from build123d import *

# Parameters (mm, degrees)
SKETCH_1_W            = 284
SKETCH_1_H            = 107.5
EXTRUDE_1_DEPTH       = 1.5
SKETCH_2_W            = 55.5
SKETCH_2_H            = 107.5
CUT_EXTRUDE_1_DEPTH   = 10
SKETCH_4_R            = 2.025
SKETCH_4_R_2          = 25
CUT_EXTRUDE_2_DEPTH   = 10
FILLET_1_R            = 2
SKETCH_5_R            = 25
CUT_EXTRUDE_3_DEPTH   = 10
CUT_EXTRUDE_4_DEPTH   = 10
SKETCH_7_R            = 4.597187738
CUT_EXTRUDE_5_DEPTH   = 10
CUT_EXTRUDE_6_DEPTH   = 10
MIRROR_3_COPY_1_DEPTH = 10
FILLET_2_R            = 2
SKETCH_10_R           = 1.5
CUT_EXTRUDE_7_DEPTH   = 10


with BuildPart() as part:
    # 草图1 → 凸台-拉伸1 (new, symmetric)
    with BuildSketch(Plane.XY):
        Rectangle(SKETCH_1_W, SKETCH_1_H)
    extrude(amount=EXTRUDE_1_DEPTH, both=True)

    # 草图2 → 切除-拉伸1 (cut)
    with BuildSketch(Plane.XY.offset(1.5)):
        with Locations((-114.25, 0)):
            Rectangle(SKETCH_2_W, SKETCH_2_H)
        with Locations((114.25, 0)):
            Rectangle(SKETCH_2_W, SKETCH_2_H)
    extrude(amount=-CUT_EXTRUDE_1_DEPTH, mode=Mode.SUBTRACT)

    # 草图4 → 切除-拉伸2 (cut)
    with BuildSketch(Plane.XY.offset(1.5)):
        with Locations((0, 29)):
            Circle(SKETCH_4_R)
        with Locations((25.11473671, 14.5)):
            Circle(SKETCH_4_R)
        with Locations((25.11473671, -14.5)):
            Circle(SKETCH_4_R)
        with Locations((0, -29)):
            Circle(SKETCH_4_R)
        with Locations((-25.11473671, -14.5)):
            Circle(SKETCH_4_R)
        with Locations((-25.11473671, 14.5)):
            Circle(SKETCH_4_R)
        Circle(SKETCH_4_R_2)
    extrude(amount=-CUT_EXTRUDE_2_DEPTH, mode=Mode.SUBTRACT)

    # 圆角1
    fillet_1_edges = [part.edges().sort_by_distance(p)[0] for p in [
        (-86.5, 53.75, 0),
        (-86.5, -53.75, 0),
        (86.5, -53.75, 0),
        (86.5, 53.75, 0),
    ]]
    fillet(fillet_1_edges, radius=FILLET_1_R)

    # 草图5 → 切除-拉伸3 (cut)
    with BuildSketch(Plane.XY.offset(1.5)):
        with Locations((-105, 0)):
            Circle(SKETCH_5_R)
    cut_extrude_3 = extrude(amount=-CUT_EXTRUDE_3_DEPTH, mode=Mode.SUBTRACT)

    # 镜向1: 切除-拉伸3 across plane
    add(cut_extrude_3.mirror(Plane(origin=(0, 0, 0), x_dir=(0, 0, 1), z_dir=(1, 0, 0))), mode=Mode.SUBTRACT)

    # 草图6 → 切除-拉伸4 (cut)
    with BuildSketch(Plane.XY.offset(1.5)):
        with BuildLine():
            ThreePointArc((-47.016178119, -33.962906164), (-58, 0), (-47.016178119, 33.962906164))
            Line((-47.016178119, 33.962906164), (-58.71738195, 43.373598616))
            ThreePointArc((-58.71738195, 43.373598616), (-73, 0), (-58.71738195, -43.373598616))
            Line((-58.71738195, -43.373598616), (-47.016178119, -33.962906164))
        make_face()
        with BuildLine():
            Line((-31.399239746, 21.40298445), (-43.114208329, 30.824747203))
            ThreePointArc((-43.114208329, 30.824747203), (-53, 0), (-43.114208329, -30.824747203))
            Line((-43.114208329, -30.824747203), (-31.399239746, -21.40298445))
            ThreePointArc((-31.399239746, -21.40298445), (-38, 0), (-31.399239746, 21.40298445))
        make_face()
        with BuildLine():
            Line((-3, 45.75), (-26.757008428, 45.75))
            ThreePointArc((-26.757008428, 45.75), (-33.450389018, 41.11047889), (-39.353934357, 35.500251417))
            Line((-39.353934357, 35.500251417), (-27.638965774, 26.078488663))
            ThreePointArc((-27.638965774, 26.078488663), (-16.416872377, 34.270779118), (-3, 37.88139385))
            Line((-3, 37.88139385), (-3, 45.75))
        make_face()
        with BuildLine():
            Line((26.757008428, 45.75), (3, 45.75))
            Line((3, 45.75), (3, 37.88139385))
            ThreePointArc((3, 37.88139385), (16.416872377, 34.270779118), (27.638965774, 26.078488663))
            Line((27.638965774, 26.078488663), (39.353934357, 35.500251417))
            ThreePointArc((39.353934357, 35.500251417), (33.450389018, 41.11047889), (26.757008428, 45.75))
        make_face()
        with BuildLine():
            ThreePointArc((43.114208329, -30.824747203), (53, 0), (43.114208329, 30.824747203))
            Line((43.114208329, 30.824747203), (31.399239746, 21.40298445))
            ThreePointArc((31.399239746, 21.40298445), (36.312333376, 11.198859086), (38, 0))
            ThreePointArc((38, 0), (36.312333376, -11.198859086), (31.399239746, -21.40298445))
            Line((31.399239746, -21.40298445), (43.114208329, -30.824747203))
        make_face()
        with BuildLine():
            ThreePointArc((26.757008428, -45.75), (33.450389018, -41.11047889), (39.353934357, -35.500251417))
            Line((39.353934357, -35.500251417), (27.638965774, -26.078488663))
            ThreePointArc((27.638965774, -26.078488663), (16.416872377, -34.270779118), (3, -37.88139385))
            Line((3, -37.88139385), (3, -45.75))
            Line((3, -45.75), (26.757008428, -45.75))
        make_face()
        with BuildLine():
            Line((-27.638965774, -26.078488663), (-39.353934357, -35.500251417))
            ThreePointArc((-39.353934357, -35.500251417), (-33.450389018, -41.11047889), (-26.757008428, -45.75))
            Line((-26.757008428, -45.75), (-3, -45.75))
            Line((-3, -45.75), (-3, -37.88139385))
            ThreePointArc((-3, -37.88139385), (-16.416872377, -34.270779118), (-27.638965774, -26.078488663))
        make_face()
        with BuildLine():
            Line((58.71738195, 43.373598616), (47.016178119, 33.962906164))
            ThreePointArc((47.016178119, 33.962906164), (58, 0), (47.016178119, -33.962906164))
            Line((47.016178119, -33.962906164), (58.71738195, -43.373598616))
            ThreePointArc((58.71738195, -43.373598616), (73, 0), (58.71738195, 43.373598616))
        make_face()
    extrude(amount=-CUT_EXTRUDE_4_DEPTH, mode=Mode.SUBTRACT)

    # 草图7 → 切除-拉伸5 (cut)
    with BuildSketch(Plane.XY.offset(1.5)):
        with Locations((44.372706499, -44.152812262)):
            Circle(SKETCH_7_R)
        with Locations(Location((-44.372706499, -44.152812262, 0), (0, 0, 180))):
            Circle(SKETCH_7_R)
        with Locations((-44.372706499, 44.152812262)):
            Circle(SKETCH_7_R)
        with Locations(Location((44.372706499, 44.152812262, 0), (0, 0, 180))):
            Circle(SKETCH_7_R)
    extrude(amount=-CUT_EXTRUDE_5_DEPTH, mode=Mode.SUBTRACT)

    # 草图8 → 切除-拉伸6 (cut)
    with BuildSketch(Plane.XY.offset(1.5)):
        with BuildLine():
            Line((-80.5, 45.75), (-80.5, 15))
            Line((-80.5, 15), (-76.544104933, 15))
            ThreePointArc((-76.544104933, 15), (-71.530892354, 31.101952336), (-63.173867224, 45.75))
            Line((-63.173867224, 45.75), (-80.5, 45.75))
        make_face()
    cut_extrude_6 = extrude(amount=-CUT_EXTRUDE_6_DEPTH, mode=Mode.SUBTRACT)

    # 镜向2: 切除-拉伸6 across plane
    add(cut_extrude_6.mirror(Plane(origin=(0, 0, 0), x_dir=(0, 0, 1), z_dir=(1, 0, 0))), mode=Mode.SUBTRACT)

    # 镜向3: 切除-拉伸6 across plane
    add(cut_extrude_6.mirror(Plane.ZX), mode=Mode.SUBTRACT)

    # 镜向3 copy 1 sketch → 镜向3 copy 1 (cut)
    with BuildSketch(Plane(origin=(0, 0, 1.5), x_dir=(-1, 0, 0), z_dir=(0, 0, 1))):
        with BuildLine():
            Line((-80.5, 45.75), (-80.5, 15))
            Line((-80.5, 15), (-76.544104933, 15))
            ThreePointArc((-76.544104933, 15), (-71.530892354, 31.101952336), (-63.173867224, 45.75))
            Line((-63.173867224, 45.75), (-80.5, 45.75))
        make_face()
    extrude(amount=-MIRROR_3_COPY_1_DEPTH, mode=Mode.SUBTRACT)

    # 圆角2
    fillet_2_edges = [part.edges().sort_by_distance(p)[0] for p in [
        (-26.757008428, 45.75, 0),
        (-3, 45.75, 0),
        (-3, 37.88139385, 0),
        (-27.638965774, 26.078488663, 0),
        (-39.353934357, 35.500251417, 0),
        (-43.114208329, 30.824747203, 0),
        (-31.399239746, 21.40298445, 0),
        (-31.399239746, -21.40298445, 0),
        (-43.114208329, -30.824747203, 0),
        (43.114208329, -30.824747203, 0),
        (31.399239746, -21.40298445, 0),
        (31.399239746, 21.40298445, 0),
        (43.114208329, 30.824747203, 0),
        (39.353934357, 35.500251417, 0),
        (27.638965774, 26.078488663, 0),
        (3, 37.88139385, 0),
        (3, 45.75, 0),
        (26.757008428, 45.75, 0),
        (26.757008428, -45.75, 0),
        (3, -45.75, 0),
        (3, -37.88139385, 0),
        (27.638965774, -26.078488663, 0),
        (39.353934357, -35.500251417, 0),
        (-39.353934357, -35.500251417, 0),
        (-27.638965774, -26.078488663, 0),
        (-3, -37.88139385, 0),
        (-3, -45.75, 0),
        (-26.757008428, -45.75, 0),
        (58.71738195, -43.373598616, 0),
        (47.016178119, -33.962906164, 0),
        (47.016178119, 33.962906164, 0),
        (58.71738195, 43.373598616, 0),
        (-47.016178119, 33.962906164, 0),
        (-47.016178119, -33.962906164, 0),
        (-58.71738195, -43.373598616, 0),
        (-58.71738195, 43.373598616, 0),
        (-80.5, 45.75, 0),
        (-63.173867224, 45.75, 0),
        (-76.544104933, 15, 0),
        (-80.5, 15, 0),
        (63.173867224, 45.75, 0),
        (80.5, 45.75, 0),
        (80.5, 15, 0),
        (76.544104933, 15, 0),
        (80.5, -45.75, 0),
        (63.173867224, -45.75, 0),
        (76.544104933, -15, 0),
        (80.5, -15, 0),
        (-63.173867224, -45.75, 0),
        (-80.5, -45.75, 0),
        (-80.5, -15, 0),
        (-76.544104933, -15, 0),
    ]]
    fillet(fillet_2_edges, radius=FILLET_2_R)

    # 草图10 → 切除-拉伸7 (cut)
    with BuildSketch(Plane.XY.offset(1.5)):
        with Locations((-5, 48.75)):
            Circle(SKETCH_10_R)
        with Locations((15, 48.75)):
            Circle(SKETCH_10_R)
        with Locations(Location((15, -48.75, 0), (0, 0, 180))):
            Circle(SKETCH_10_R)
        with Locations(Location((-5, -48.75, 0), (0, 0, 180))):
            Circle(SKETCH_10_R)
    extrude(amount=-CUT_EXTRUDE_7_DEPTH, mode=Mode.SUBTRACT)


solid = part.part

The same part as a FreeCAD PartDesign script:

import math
import FreeCAD as App
import Part
import Sketcher
Q = App.Units.Quantity


def edges_at(feature, points):
    """Names of the edges that pass closest to the given points."""
    edges = feature.Shape.Edges
    near = lambda p: min(range(len(edges)), key=lambda i: edges[i].distToShape(Part.Vertex(*p))[0])
    return sorted({f"Edge{near(p) + 1}" for p in points})


def add_polygon(sketch, points):
    """Adds a closed chain of lines whose ends are joined by coincident constraints."""
    first, n = sketch.GeometryCount, len(points)
    for a, b in zip(points, points[1:] + points[:1]):
        sketch.addGeometry(Part.LineSegment(App.Vector(*a, 0), App.Vector(*b, 0)), False)
    for i in range(n):
        sketch.addConstraint(Sketcher.Constraint("Coincident", first + i, 2, first + (i + 1) % n, 1))

doc = App.newDocument("Part")
body = doc.addObject("PartDesign::Body", "Body")

# Sketch on XY plane
sketch1 = doc.addObject("Sketcher::SketchObject", "Sketch")
body.addObject(sketch1)
sketch1.AttachmentSupport = (doc.XY_Plane, [""])
sketch1.MapMode = "FlatFace"
add_polygon(sketch1, [(-142, 54), (-142, -54), (142, -54), (142, 54)])  # lines 0-3
sketch1.addConstraint(Sketcher.Constraint("Vertical", 0))
sketch1.addConstraint(Sketcher.Constraint("Horizontal", 1))
sketch1.addConstraint(Sketcher.Constraint("Vertical", 2))
sketch1.addConstraint(Sketcher.Constraint("Horizontal", 3))
sketch1.addConstraint(Sketcher.Constraint("Symmetric", 0, 2, 2, 2, -1, 1))
sketch1.addConstraint(Sketcher.Constraint("DistanceX", 1, 1, 1, 2, Q("284 mm")))
sketch1.addConstraint(Sketcher.Constraint("DistanceY", 0, 2, 0, 1, Q("107.5 mm")))
pad1 = doc.addObject("PartDesign::Pad", "Pad")
body.addObject(pad1)
pad1.Profile = sketch1
pad1.Length = 3
pad1.Midplane = True

# Sketch on XY plane
sketch2 = doc.addObject("Sketcher::SketchObject", "Sketch001")
body.addObject(sketch2)
sketch2.AttachmentSupport = (doc.XY_Plane, [""])
sketch2.MapMode = "FlatFace"
sketch2.AttachmentOffset = App.Placement(App.Vector(0, 0, 1.5), App.Rotation())
add_polygon(sketch2, [(-142, 54), (-142, -54), (-86, -54), (-86, 54)])  # lines 0-3
add_polygon(sketch2, [(86, 54), (86, -54), (142, -54), (142, 54)])  # lines 4-7
sketch2.addConstraint(Sketcher.Constraint("Vertical", 0))
sketch2.addConstraint(Sketcher.Constraint("Horizontal", 1))
sketch2.addConstraint(Sketcher.Constraint("Vertical", 2))
sketch2.addConstraint(Sketcher.Constraint("Horizontal", 3))
sketch2.addConstraint(Sketcher.Constraint("Vertical", 4))
sketch2.addConstraint(Sketcher.Constraint("Horizontal", 5))
sketch2.addConstraint(Sketcher.Constraint("Vertical", 6))
sketch2.addConstraint(Sketcher.Constraint("Horizontal", 7))
sketch2.addConstraint(Sketcher.Constraint("Symmetric", 2, 2, 4, 2, -1, 1))
sketch2.addConstraint(Sketcher.Constraint("Symmetric", 0, 2, 6, 2, -1, 1))
sketch2.addConstraint(Sketcher.Constraint("Horizontal", 1, 2, 4, 2))
sketch2.addConstraint(Sketcher.Constraint("DistanceX", 1, 1, 1, 2, Q("55.5 mm")))
sketch2.addConstraint(Sketcher.Constraint("DistanceY", 0, 2, 0, 1, Q("107.5 mm")))
sketch2.addConstraint(Sketcher.Constraint("DistanceX", 0, 2, -1, 1, Q("142 mm")))
pocket1 = doc.addObject("PartDesign::Pocket", "Pocket")
body.addObject(pocket1)
pocket1.Profile = sketch2
pocket1.Length = 10

# Sketch on XY plane
sketch3 = doc.addObject("Sketcher::SketchObject", "Sketch002")
body.addObject(sketch3)
sketch3.AttachmentSupport = (doc.XY_Plane, [""])
sketch3.MapMode = "FlatFace"
sketch3.AttachmentOffset = App.Placement(App.Vector(0, 0, 1.5), App.Rotation())
sketch3.addGeometry(Part.Circle(App.Vector(0, 29, 0), App.Vector(0, 0, 1), 2), False)
sketch3.addGeometry(Part.Circle(App.Vector(25.1, 14.5, 0), App.Vector(0, 0, 1), 2), False)
sketch3.addGeometry(Part.Circle(App.Vector(25.1, -14.5, 0), App.Vector(0, 0, 1), 2), False)
sketch3.addGeometry(Part.Circle(App.Vector(0, -29, 0), App.Vector(0, 0, 1), 2), False)
sketch3.addGeometry(Part.Circle(App.Vector(-25.1, -14.5, 0), App.Vector(0, 0, 1), 2), False)
sketch3.addGeometry(Part.Circle(App.Vector(-25.1, 14.5, 0), App.Vector(0, 0, 1), 2), False)
sketch3.addGeometry(Part.Circle(App.Vector(0, 0, 0), App.Vector(0, 0, 1), 25), False)
sketch3.addConstraint(Sketcher.Constraint("Coincident", 6, 3, -1, 1))
sketch3.addConstraint(Sketcher.Constraint("Equal", 0, 1))
sketch3.addConstraint(Sketcher.Constraint("Equal", 1, 2))
sketch3.addConstraint(Sketcher.Constraint("Equal", 2, 3))
sketch3.addConstraint(Sketcher.Constraint("Equal", 3, 4))
sketch3.addConstraint(Sketcher.Constraint("Equal", 4, 5))
sketch3.addConstraint(Sketcher.Constraint("Symmetric", 0, 3, 3, 3, -1, 1))
sketch3.addConstraint(Sketcher.Constraint("Symmetric", 1, 3, 4, 3, -1, 1))
sketch3.addConstraint(Sketcher.Constraint("Symmetric", 2, 3, 5, 3, -1, 1))
sketch3.addConstraint(Sketcher.Constraint("Symmetric", 2, 3, 4, 3, -2))
sketch3.addConstraint(Sketcher.Constraint("PointOnObject", 0, 3, -2))
sketch3.addConstraint(Sketcher.Constraint("Diameter", 6, Q("50 mm")))
sketch3.addConstraint(Sketcher.Constraint("Diameter", 0, Q("4.05 mm")))
sketch3.addConstraint(Sketcher.Constraint("DistanceY", -1, 1, 0, 3, Q("29 mm")))
sketch3.addConstraint(Sketcher.Constraint("DistanceY", 2, 3, 1, 3, Q("29 mm")))
sketch3.addConstraint(Sketcher.Constraint("DistanceX", -1, 1, 1, 3, Q("25.114737 mm")))
pocket2 = doc.addObject("PartDesign::Pocket", "Pocket001")
body.addObject(pocket2)
pocket2.Profile = sketch3
pocket2.Length = 10
doc.recompute()

fillet = doc.addObject("PartDesign::Fillet", "Fillet")
body.addObject(fillet)
fillet.Base = (pocket2, edges_at(pocket2, [
    (-86.5, 53.75, 0),
    (-86.5, -53.75, 0),
    (86.5, -53.75, 0),
    (86.5, 53.75, 0),
]))
fillet.Radius = 2

# Sketch on XY plane
sketch4 = doc.addObject("Sketcher::SketchObject", "Sketch003")
body.addObject(sketch4)
sketch4.AttachmentSupport = (doc.XY_Plane, [""])
sketch4.MapMode = "FlatFace"
sketch4.AttachmentOffset = App.Placement(App.Vector(0, 0, 1.5), App.Rotation())
sketch4.addGeometry(Part.Circle(App.Vector(-105, 0, 0), App.Vector(0, 0, 1), 25), False)
sketch4.addConstraint(Sketcher.Constraint("PointOnObject", 0, 3, -1))
sketch4.addConstraint(Sketcher.Constraint("Diameter", 0, Q("50 mm")))
sketch4.addConstraint(Sketcher.Constraint("DistanceX", 0, 3, -1, 1, Q("105 mm")))
pocket3 = doc.addObject("PartDesign::Pocket", "Pocket002")
body.addObject(pocket3)
pocket3.Profile = sketch4
pocket3.Length = 10
doc.recompute()

mirrored = doc.addObject("PartDesign::Mirrored", "Mirrored")
body.addObject(mirrored)
mirrored.Originals = [pocket3]
mirrored.MirrorPlane = (doc.YZ_Plane, [""])
body.Tip = mirrored

# Sketch on XY plane
sketch5 = doc.addObject("Sketcher::SketchObject", "Sketch004")
body.addObject(sketch5)
sketch5.AttachmentSupport = (doc.XY_Plane, [""])
sketch5.MapMode = "FlatFace"
sketch5.AttachmentOffset = App.Placement(App.Vector(0, 0, 1.5), App.Rotation())
sketch5.addGeometry(Part.ArcOfCircle(Part.Circle(App.Vector(0, 0, 0), App.Vector(0, 0, 1), 58), math.radians(144), math.radians(216)), False)
sketch5.addGeometry(Part.LineSegment(App.Vector(-47, 34, 0), App.Vector(-59, 43, 0)), False)
sketch5.addGeometry(Part.ArcOfCircle(Part.Circle(App.Vector(0, 0, 0), App.Vector(0, 0, 1), 73), math.radians(144), math.radians(216)), False)
sketch5.addGeometry(Part.LineSegment(App.Vector(-59, -43, 0), App.Vector(-47, -34, 0)), False)
sketch5.addGeometry(Part.LineSegment(App.Vector(-31, 21, 0), App.Vector(-43, 31, 0)), False)
sketch5.addGeometry(Part.ArcOfCircle(Part.Circle(App.Vector(0, 0, 0), App.Vector(0, 0, 1), 53), math.radians(144), math.radians(216)), False)
sketch5.addGeometry(Part.LineSegment(App.Vector(-43, -31, 0), App.Vector(-31, -21, 0)), False)
sketch5.addGeometry(Part.ArcOfCircle(Part.Circle(App.Vector(0, 0, 0), App.Vector(0, 0, 1), 38), math.radians(146), math.radians(214)), False)
sketch5.addGeometry(Part.LineSegment(App.Vector(-3, 46, 0), App.Vector(-27, 46, 0)), False)
sketch5.addGeometry(Part.ArcOfCircle(Part.Circle(App.Vector(0, 0, 0), App.Vector(0, 0, 1), 53), math.radians(120.32), math.radians(137.95)), False)
sketch5.addGeometry(Part.LineSegment(App.Vector(-39, 36, 0), App.Vector(-28, 26, 0)), False)
sketch5.addGeometry(Part.ArcOfCircle(Part.Circle(App.Vector(0, 0, 0), App.Vector(0, 0, 1), 38), math.radians(95), math.radians(137)), False)
sketch5.addGeometry(Part.LineSegment(App.Vector(-3, 38, 0), App.Vector(-3, 46, 0)), False)
sketch5.addGeometry(Part.LineSegment(App.Vector(27, 46, 0), App.Vector(3, 46, 0)), False)
sketch5.addGeometry(Part.LineSegment(App.Vector(3, 46, 0), App.Vector(3, 38, 0)), False)
sketch5.addGeometry(Part.ArcOfCircle(Part.Circle(App.Vector(0, 0, 0), App.Vector(0, 0, 1), 38), math.radians(43), math.radians(85)), False)
sketch5.addGeometry(Part.LineSegment(App.Vector(28, 26, 0), App.Vector(39, 36, 0)), False)
sketch5.addGeometry(Part.ArcOfCircle(Part.Circle(App.Vector(0, 0, 0), App.Vector(0, 0, 1), 53), math.radians(42.05), math.radians(59.68)), False)
sketch5.addGeometry(Part.ArcOfCircle(Part.Circle(App.Vector(0, 0, 0), App.Vector(0, 0, 1), 53), math.radians(-36), math.radians(36)), False)
sketch5.addGeometry(Part.LineSegment(App.Vector(43, 31, 0), App.Vector(31, 21, 0)), False)
sketch5.addGeometry(Part.ArcOfCircle(Part.Circle(App.Vector(0, 0, 0), App.Vector(0, 0, 1), 38), math.radians(0), math.radians(34)), False)
sketch5.addGeometry(Part.ArcOfCircle(Part.Circle(App.Vector(0, 0, 0), App.Vector(0, 0, 1), 38), math.radians(-34), math.radians(0)), False)
sketch5.addGeometry(Part.LineSegment(App.Vector(31, -21, 0), App.Vector(43, -31, 0)), False)
sketch5.addGeometry(Part.ArcOfCircle(Part.Circle(App.Vector(0, 0, 0), App.Vector(0, 0, 1), 53), math.radians(-59.68), math.radians(-42.05)), False)
sketch5.addGeometry(Part.LineSegment(App.Vector(39, -36, 0), App.Vector(28, -26, 0)), False)
sketch5.addGeometry(Part.ArcOfCircle(Part.Circle(App.Vector(0, 0, 0), App.Vector(0, 0, 1), 38), math.radians(-85), math.radians(-43)), False)
sketch5.addGeometry(Part.LineSegment(App.Vector(3, -38, 0), App.Vector(3, -46, 0)), False)
sketch5.addGeometry(Part.LineSegment(App.Vector(3, -46, 0), App.Vector(27, -46, 0)), False)
sketch5.addGeometry(Part.LineSegment(App.Vector(-28, -26, 0), App.Vector(-39, -36, 0)), False)
sketch5.addGeometry(Part.ArcOfCircle(Part.Circle(App.Vector(0, 0, 0), App.Vector(0, 0, 1), 53), math.radians(-137.95), math.radians(-120.32)), False)
sketch5.addGeometry(Part.LineSegment(App.Vector(-27, -46, 0), App.Vector(-3, -46, 0)), False)
sketch5.addGeometry(Part.LineSegment(App.Vector(-3, -46, 0), App.Vector(-3, -38, 0)), False)
sketch5.addGeometry(Part.ArcOfCircle(Part.Circle(App.Vector(0, 0, 0), App.Vector(0, 0, 1), 38), math.radians(-137), math.radians(-95)), False)
sketch5.addGeometry(Part.LineSegment(App.Vector(59, 43, 0), App.Vector(47, 34, 0)), False)
sketch5.addGeometry(Part.ArcOfCircle(Part.Circle(App.Vector(0, 0, 0), App.Vector(0, 0, 1), 58), math.radians(-36), math.radians(36)), False)
sketch5.addGeometry(Part.LineSegment(App.Vector(47, -34, 0), App.Vector(59, -43, 0)), False)
sketch5.addGeometry(Part.ArcOfCircle(Part.Circle(App.Vector(0, 0, 0), App.Vector(0, 0, 1), 73), math.radians(-36), math.radians(36)), False)
sketch5.addConstraint(Sketcher.Constraint("Coincident", 0, 1, 1, 1))
sketch5.addConstraint(Sketcher.Constraint("Coincident", 1, 2, 2, 1))
sketch5.addConstraint(Sketcher.Constraint("Coincident", 2, 2, 3, 1))
sketch5.addConstraint(Sketcher.Constraint("Coincident", 3, 2, 0, 2))
sketch5.addConstraint(Sketcher.Constraint("Coincident", 4, 2, 5, 1))
sketch5.addConstraint(Sketcher.Constraint("Coincident", 5, 2, 6, 1))
sketch5.addConstraint(Sketcher.Constraint("Coincident", 6, 2, 7, 2))
sketch5.addConstraint(Sketcher.Constraint("Coincident", 7, 1, 4, 1))
sketch5.addConstraint(Sketcher.Constraint("Coincident", 8, 2, 9, 1))
sketch5.addConstraint(Sketcher.Constraint("Coincident", 9, 2, 10, 1))
sketch5.addConstraint(Sketcher.Constraint("Coincident", 10, 2, 11, 2))
sketch5.addConstraint(Sketcher.Constraint("Coincident", 11, 1, 12, 1))
sketch5.addConstraint(Sketcher.Constraint("Coincident", 12, 2, 8, 1))
sketch5.addConstraint(Sketcher.Constraint("Coincident", 13, 2, 14, 1))
sketch5.addConstraint(Sketcher.Constraint("Coincident", 14, 2, 15, 2))
sketch5.addConstraint(Sketcher.Constraint("Coincident", 15, 1, 16, 1))
sketch5.addConstraint(Sketcher.Constraint("Coincident", 16, 2, 17, 1))
sketch5.addConstraint(Sketcher.Constraint("Coincident", 17, 2, 13, 1))
sketch5.addConstraint(Sketcher.Constraint("Coincident", 18, 2, 19, 1))
sketch5.addConstraint(Sketcher.Constraint("Coincident", 19, 2, 20, 2))
sketch5.addConstraint(Sketcher.Constraint("Tangent", 20, 1, 21, 2))
sketch5.addConstraint(Sketcher.Constraint("Coincident", 21, 1, 22, 1))
sketch5.addConstraint(Sketcher.Constraint("Coincident", 22, 2, 18, 1))
sketch5.addConstraint(Sketcher.Constraint("Coincident", 23, 2, 24, 1))
sketch5.addConstraint(Sketcher.Constraint("Coincident", 24, 2, 25, 2))
sketch5.addConstraint(Sketcher.Constraint("Coincident", 25, 1, 26, 1))
sketch5.addConstraint(Sketcher.Constraint("Coincident", 26, 2, 27, 1))
sketch5.addConstraint(Sketcher.Constraint("Coincident", 27, 2, 23, 1))
sketch5.addConstraint(Sketcher.Constraint("Coincident", 28, 2, 29, 1))
sketch5.addConstraint(Sketcher.Constraint("Coincident", 29, 2, 30, 1))
sketch5.addConstraint(Sketcher.Constraint("Coincident", 30, 2, 31, 1))
sketch5.addConstraint(Sketcher.Constraint("Coincident", 31, 2, 32, 2))
sketch5.addConstraint(Sketcher.Constraint("Coincident", 32, 1, 28, 1))
sketch5.addConstraint(Sketcher.Constraint("Coincident", 33, 2, 34, 2))
sketch5.addConstraint(Sketcher.Constraint("Coincident", 34, 1, 35, 1))
sketch5.addConstraint(Sketcher.Constraint("Coincident", 35, 2, 36, 1))
sketch5.addConstraint(Sketcher.Constraint("Coincident", 36, 2, 33, 1))
sketch5.addConstraint(Sketcher.Constraint("Horizontal", 8))
sketch5.addConstraint(Sketcher.Constraint("Vertical", 12))
sketch5.addConstraint(Sketcher.Constraint("Horizontal", 13))
sketch5.addConstraint(Sketcher.Constraint("Vertical", 14))
sketch5.addConstraint(Sketcher.Constraint("Vertical", 26))
sketch5.addConstraint(Sketcher.Constraint("Horizontal", 27))
sketch5.addConstraint(Sketcher.Constraint("Horizontal", 30))
sketch5.addConstraint(Sketcher.Constraint("Vertical", 31))
sketch5.addConstraint(Sketcher.Constraint("Coincident", 0, 3, -1, 1))
sketch5.addConstraint(Sketcher.Constraint("Coincident", 2, 3, -1, 1))
sketch5.addConstraint(Sketcher.Constraint("Coincident", 5, 3, -1, 1))
sketch5.addConstraint(Sketcher.Constraint("Coincident", 7, 3, -1, 1))
sketch5.addConstraint(Sketcher.Constraint("Coincident", 9, 3, -1, 1))
sketch5.addConstraint(Sketcher.Constraint("Coincident", 11, 3, -1, 1))
sketch5.addConstraint(Sketcher.Constraint("Coincident", 15, 3, -1, 1))
sketch5.addConstraint(Sketcher.Constraint("Coincident", 17, 3, -1, 1))
sketch5.addConstraint(Sketcher.Constraint("Coincident", 18, 3, -1, 1))
sketch5.addConstraint(Sketcher.Constraint("Coincident", 20, 3, -1, 1))
sketch5.addConstraint(Sketcher.Constraint("Coincident", 23, 3, -1, 1))
sketch5.addConstraint(Sketcher.Constraint("Coincident", 25, 3, -1, 1))
sketch5.addConstraint(Sketcher.Constraint("Coincident", 29, 3, -1, 1))
sketch5.addConstraint(Sketcher.Constraint("Coincident", 32, 3, -1, 1))
sketch5.addConstraint(Sketcher.Constraint("Coincident", 34, 3, -1, 1))
sketch5.addConstraint(Sketcher.Constraint("Coincident", 36, 3, -1, 1))
sketch5.addConstraint(Sketcher.Constraint("Equal", 5, 9))
sketch5.addConstraint(Sketcher.Constraint("Equal", 7, 11))
sketch5.addConstraint(Sketcher.Constraint("Equal", 11, 15))
sketch5.addConstraint(Sketcher.Constraint("Equal", 9, 17))
sketch5.addConstraint(Sketcher.Constraint("Equal", 17, 18))
sketch5.addConstraint(Sketcher.Constraint("Equal", 15, 20))
sketch5.addConstraint(Sketcher.Constraint("Equal", 20, 21))
sketch5.addConstraint(Sketcher.Constraint("Equal", 18, 23))
sketch5.addConstraint(Sketcher.Constraint("Equal", 21, 25))
sketch5.addConstraint(Sketcher.Constraint("Equal", 23, 29))
sketch5.addConstraint(Sketcher.Constraint("Equal", 25, 32))
sketch5.addConstraint(Sketcher.Constraint("Equal", 0, 34))
sketch5.addConstraint(Sketcher.Constraint("Equal", 2, 36))
sketch5.addConstraint(Sketcher.Constraint("Symmetric", 12, 2, 26, 2, -1, 1))
sketch5.addConstraint(Sketcher.Constraint("Symmetric", 13, 2, 30, 2, -1, 1))
sketch5.addConstraint(Sketcher.Constraint("Symmetric", 12, 2, 13, 2, -2))
sketch5.addConstraint(Sketcher.Constraint("PointOnObject", 20, 1, -1))
sketch5.addConstraint(Sketcher.Constraint("Parallel", 1, 4))
sketch5.addConstraint(Sketcher.Constraint("Parallel", 3, 6))
sketch5.addConstraint(Sketcher.Constraint("Parallel", 4, 10))
sketch5.addConstraint(Sketcher.Constraint("Parallel", 6, 16))
sketch5.addConstraint(Sketcher.Constraint("Parallel", 16, 19))
sketch5.addConstraint(Sketcher.Constraint("Parallel", 10, 22))
sketch5.addConstraint(Sketcher.Constraint("Parallel", 22, 24))
sketch5.addConstraint(Sketcher.Constraint("Parallel", 19, 28))
sketch5.addConstraint(Sketcher.Constraint("Parallel", 28, 33))
sketch5.addConstraint(Sketcher.Constraint("Parallel", 24, 35))
sketch5.addConstraint(Sketcher.Constraint("Horizontal", 10, 2, 15, 1))
sketch5.addConstraint(Sketcher.Constraint("Horizontal", 9, 2, 16, 2))
sketch5.addConstraint(Sketcher.Constraint("Horizontal", 4, 2, 18, 2))
sketch5.addConstraint(Sketcher.Constraint("Horizontal", 6, 2, 21, 1))
sketch5.addConstraint(Sketcher.Constraint("Horizontal", 23, 2, 28, 2))
sketch5.addConstraint(Sketcher.Constraint("Horizontal", 0, 1, 33, 2))
sketch5.addConstraint(Sketcher.Constraint("Horizontal", 3, 2, 34, 1))
sketch5.addConstraint(Sketcher.Constraint("Vertical", 1, 2, 2, 2))
sketch5.addConstraint(Sketcher.Constraint("Vertical", 4, 2, 5, 2))
sketch5.addConstraint(Sketcher.Constraint("Vertical", 16, 2, 23, 2))
sketch5.addConstraint(Sketcher.Constraint("Equal", 6, 10))
sketch5.addConstraint(Sketcher.Constraint("Radius", 0, Q("58 mm")))
sketch5.addConstraint(Sketcher.Constraint("Radius", 2, Q("73 mm")))
sketch5.addConstraint(Sketcher.Constraint("Radius", 5, Q("53 mm")))
sketch5.addConstraint(Sketcher.Constraint("Radius", 7, Q("38 mm")))
sketch5.addConstraint(Sketcher.Constraint("DistanceX", 11, 1, -1, 1, Q("3 mm")))
sketch5.addConstraint(Sketcher.Constraint("DistanceY", -1, 1, 8, 2, Q("45.75 mm")))
sketch5.addConstraint(Sketcher.Constraint("DistanceY", -1, 1, 1, 2, Q("43.373599 mm")))
sketch5.addConstraint(Sketcher.Constraint("DistanceX", 4, 2, 8, 2, Q("16.3572 mm")))
sketch5.addConstraint(Sketcher.Constraint("DistanceX", 3, 2, -1, 1, Q("47.016178 mm")))
pocket4 = doc.addObject("PartDesign::Pocket", "Pocket003")
body.addObject(pocket4)
pocket4.Profile = sketch5
pocket4.Length = 10

# Sketch on XY plane
sketch6 = doc.addObject("Sketcher::SketchObject", "Sketch005")
body.addObject(sketch6)
sketch6.AttachmentSupport = (doc.XY_Plane, [""])
sketch6.MapMode = "FlatFace"
sketch6.AttachmentOffset = App.Placement(App.Vector(0, 0, 1.5), App.Rotation())
sketch6.addGeometry(Part.Circle(App.Vector(44.4, -44.2, 0), App.Vector(0, 0, 1), 4.6), False)
sketch6.addGeometry(Part.Circle(App.Vector(-44.4, -44.2, 0), App.Vector(0, 0, 1), 4.6), False)
sketch6.addGeometry(Part.Circle(App.Vector(-44.4, 44.2, 0), App.Vector(0, 0, 1), 4.6), False)
sketch6.addGeometry(Part.Circle(App.Vector(44.4, 44.2, 0), App.Vector(0, 0, 1), 4.6), False)
sketch6.addConstraint(Sketcher.Constraint("Equal", 0, 1))
sketch6.addConstraint(Sketcher.Constraint("Equal", 1, 2))
sketch6.addConstraint(Sketcher.Constraint("Equal", 2, 3))
sketch6.addConstraint(Sketcher.Constraint("Symmetric", 0, 3, 2, 3, -1, 1))
sketch6.addConstraint(Sketcher.Constraint("Symmetric", 1, 3, 3, 3, -1, 1))
sketch6.addConstraint(Sketcher.Constraint("Symmetric", 0, 3, 1, 3, -2))
sketch6.addConstraint(Sketcher.Constraint("Diameter", 0, Q("9.194375 mm")))
sketch6.addConstraint(Sketcher.Constraint("DistanceX", -1, 1, 0, 3, Q("44.372706 mm")))
sketch6.addConstraint(Sketcher.Constraint("DistanceY", 0, 3, -1, 1, Q("44.152812 mm")))
pocket5 = doc.addObject("PartDesign::Pocket", "Pocket004")
body.addObject(pocket5)
pocket5.Profile = sketch6
pocket5.Length = 10

# Sketch on XY plane
sketch7 = doc.addObject("Sketcher::SketchObject", "Sketch006")
body.addObject(sketch7)
sketch7.AttachmentSupport = (doc.XY_Plane, [""])
sketch7.MapMode = "FlatFace"
sketch7.AttachmentOffset = App.Placement(App.Vector(0, 0, 1.5), App.Rotation())
sketch7.addGeometry(Part.LineSegment(App.Vector(-80.5, 45.8, 0), App.Vector(-80.5, 15, 0)), False)
sketch7.addGeometry(Part.LineSegment(App.Vector(-80.5, 15, 0), App.Vector(-76.5, 15, 0)), False)
sketch7.addGeometry(Part.ArcOfCircle(Part.Circle(App.Vector(0, 0, 0), App.Vector(0, 0, 1), 78), math.radians(144), math.radians(169)), False)
sketch7.addGeometry(Part.LineSegment(App.Vector(-63.2, 45.8, 0), App.Vector(-80.5, 45.8, 0)), False)
sketch7.addConstraint(Sketcher.Constraint("Coincident", 0, 2, 1, 1))
sketch7.addConstraint(Sketcher.Constraint("Coincident", 1, 2, 2, 2))
sketch7.addConstraint(Sketcher.Constraint("Coincident", 2, 1, 3, 1))
sketch7.addConstraint(Sketcher.Constraint("Coincident", 3, 2, 0, 1))
sketch7.addConstraint(Sketcher.Constraint("Vertical", 0))
sketch7.addConstraint(Sketcher.Constraint("Horizontal", 1))
sketch7.addConstraint(Sketcher.Constraint("Horizontal", 3))
sketch7.addConstraint(Sketcher.Constraint("Coincident", 2, 3, -1, 1))
sketch7.addConstraint(Sketcher.Constraint("Radius", 2, Q("78 mm")))
sketch7.addConstraint(Sketcher.Constraint("DistanceY", -1, 1, 0, 2, Q("15 mm")))
sketch7.addConstraint(Sketcher.Constraint("DistanceY", 0, 2, 0, 1, Q("30.75 mm")))
sketch7.addConstraint(Sketcher.Constraint("DistanceX", 0, 2, -1, 1, Q("80.5 mm")))
pocket6 = doc.addObject("PartDesign::Pocket", "Pocket005")
body.addObject(pocket6)
pocket6.Profile = sketch7
pocket6.Length = 10
doc.recompute()

mirrored2 = doc.addObject("PartDesign::Mirrored", "Mirrored001")
body.addObject(mirrored2)
mirrored2.Originals = [pocket6]
mirrored2.MirrorPlane = (doc.YZ_Plane, [""])
body.Tip = mirrored2
doc.recompute()

mirrored3 = doc.addObject("PartDesign::Mirrored", "Mirrored002")
body.addObject(mirrored3)
mirrored3.Originals = [pocket6]
mirrored3.MirrorPlane = (doc.XZ_Plane, [""])
body.Tip = mirrored3

# Sketch on XY plane
sketch8 = doc.addObject("Sketcher::SketchObject", "Sketch007")
body.addObject(sketch8)
sketch8.AttachmentSupport = (doc.XY_Plane, [""])
sketch8.MapMode = "FlatFace"
sketch8.AttachmentOffset = App.Placement(App.Vector(0, 0, 1.5), App.Rotation())
sketch8.addGeometry(Part.LineSegment(App.Vector(80.5, -45.8, 0), App.Vector(80.5, -15, 0)), False)
sketch8.addGeometry(Part.LineSegment(App.Vector(80.5, -15, 0), App.Vector(76.5, -15, 0)), False)
sketch8.addGeometry(Part.ArcOfCircle(Part.Circle(App.Vector(0, 0, 0), App.Vector(0, 0, 1), 78), math.radians(-36), math.radians(-11)), False)
sketch8.addGeometry(Part.LineSegment(App.Vector(63.2, -45.8, 0), App.Vector(80.5, -45.8, 0)), False)
sketch8.addConstraint(Sketcher.Constraint("Coincident", 0, 2, 1, 1))
sketch8.addConstraint(Sketcher.Constraint("Coincident", 1, 2, 2, 2))
sketch8.addConstraint(Sketcher.Constraint("Coincident", 2, 1, 3, 1))
sketch8.addConstraint(Sketcher.Constraint("Coincident", 3, 2, 0, 1))
sketch8.addConstraint(Sketcher.Constraint("Vertical", 0))
sketch8.addConstraint(Sketcher.Constraint("Horizontal", 1))
sketch8.addConstraint(Sketcher.Constraint("Horizontal", 3))
sketch8.addConstraint(Sketcher.Constraint("Coincident", 2, 3, -1, 1))
sketch8.addConstraint(Sketcher.Constraint("Radius", 2, Q("78 mm")))
sketch8.addConstraint(Sketcher.Constraint("DistanceY", 0, 2, -1, 1, Q("15 mm")))
sketch8.addConstraint(Sketcher.Constraint("DistanceY", 0, 1, 0, 2, Q("30.75 mm")))
sketch8.addConstraint(Sketcher.Constraint("DistanceX", -1, 1, 0, 2, Q("80.5 mm")))
pocket7 = doc.addObject("PartDesign::Pocket", "Pocket006")
body.addObject(pocket7)
pocket7.Profile = sketch8
pocket7.Length = 10
doc.recompute()

fillet2 = doc.addObject("PartDesign::Fillet", "Fillet001")
body.addObject(fillet2)
fillet2.Base = (pocket7, edges_at(pocket7, [
    (-26.757, 45.75, 0),
    (-3, 45.75, 0),
    (-3, 37.881, 0),
    (-27.639, 26.078, 0),
    (-39.354, 35.5, 0),
    (-43.114, 30.825, 0),
    (-31.399, 21.403, 0),
    (-31.399, -21.403, 0),
    (-43.114, -30.825, 0),
    (43.114, -30.825, 0),
    (31.399, -21.403, 0),
    (31.399, 21.403, 0),
    (43.114, 30.825, 0),
    (39.354, 35.5, 0),
    (27.639, 26.078, 0),
    (3, 37.881, 0),
    (3, 45.75, 0),
    (26.757, 45.75, 0),
    (26.757, -45.75, 0),
    (3, -45.75, 0),
    (3, -37.881, 0),
    (27.639, -26.078, 0),
    (39.354, -35.5, 0),
    (-39.354, -35.5, 0),
    (-27.639, -26.078, 0),
    (-3, -37.881, 0),
    (-3, -45.75, 0),
    (-26.757, -45.75, 0),
    (58.717, -43.374, 0),
    (47.016, -33.963, 0),
    (47.016, 33.963, 0),
    (58.717, 43.374, 0),
    (-47.016, 33.963, 0),
    (-47.016, -33.963, 0),
    (-58.717, -43.374, 0),
    (-58.717, 43.374, 0),
    (-80.5, 45.75, 0),
    (-63.174, 45.75, 0),
    (-76.544, 15, 0),
    (-80.5, 15, 0),
    (63.174, 45.75, 0),
    (80.5, 45.75, 0),
    (80.5, 15, 0),
    (76.544, 15, 0),
    (80.5, -45.75, 0),
    (63.174, -45.75, 0),
    (76.544, -15, 0),
    (80.5, -15, 0),
    (-63.174, -45.75, 0),
    (-80.5, -45.75, 0),
    (-80.5, -15, 0),
    (-76.544, -15, 0),
]))
fillet2.Radius = 2

# Sketch on XY plane
sketch9 = doc.addObject("Sketcher::SketchObject", "Sketch008")
body.addObject(sketch9)
sketch9.AttachmentSupport = (doc.XY_Plane, [""])
sketch9.MapMode = "FlatFace"
sketch9.AttachmentOffset = App.Placement(App.Vector(0, 0, 1.5), App.Rotation())
sketch9.addGeometry(Part.Circle(App.Vector(-5, 48.8, 0), App.Vector(0, 0, 1), 1.5), False)
sketch9.addGeometry(Part.Circle(App.Vector(15, 48.8, 0), App.Vector(0, 0, 1), 1.5), False)
sketch9.addGeometry(Part.Circle(App.Vector(15, -48.8, 0), App.Vector(0, 0, 1), 1.5), False)
sketch9.addGeometry(Part.Circle(App.Vector(-5, -48.8, 0), App.Vector(0, 0, 1), 1.5), False)
sketch9.addConstraint(Sketcher.Constraint("Equal", 0, 1))
sketch9.addConstraint(Sketcher.Constraint("Equal", 1, 2))
sketch9.addConstraint(Sketcher.Constraint("Equal", 2, 3))
sketch9.addConstraint(Sketcher.Constraint("Symmetric", 1, 3, 2, 3, -1))
sketch9.addConstraint(Sketcher.Constraint("Symmetric", 0, 3, 3, 3, -1))
sketch9.addConstraint(Sketcher.Constraint("Horizontal", 0, 3, 1, 3))
sketch9.addConstraint(Sketcher.Constraint("Diameter", 0, Q("3 mm")))
sketch9.addConstraint(Sketcher.Constraint("DistanceX", 0, 3, -1, 1, Q("5 mm")))
sketch9.addConstraint(Sketcher.Constraint("DistanceX", -1, 1, 1, 3, Q("15 mm")))
sketch9.addConstraint(Sketcher.Constraint("DistanceY", 2, 3, 1, 3, Q("97.5 mm")))
pocket8 = doc.addObject("PartDesign::Pocket", "Pocket007")
body.addObject(pocket8)
pocket8.Profile = sketch9
pocket8.Length = 10

doc.recompute()
